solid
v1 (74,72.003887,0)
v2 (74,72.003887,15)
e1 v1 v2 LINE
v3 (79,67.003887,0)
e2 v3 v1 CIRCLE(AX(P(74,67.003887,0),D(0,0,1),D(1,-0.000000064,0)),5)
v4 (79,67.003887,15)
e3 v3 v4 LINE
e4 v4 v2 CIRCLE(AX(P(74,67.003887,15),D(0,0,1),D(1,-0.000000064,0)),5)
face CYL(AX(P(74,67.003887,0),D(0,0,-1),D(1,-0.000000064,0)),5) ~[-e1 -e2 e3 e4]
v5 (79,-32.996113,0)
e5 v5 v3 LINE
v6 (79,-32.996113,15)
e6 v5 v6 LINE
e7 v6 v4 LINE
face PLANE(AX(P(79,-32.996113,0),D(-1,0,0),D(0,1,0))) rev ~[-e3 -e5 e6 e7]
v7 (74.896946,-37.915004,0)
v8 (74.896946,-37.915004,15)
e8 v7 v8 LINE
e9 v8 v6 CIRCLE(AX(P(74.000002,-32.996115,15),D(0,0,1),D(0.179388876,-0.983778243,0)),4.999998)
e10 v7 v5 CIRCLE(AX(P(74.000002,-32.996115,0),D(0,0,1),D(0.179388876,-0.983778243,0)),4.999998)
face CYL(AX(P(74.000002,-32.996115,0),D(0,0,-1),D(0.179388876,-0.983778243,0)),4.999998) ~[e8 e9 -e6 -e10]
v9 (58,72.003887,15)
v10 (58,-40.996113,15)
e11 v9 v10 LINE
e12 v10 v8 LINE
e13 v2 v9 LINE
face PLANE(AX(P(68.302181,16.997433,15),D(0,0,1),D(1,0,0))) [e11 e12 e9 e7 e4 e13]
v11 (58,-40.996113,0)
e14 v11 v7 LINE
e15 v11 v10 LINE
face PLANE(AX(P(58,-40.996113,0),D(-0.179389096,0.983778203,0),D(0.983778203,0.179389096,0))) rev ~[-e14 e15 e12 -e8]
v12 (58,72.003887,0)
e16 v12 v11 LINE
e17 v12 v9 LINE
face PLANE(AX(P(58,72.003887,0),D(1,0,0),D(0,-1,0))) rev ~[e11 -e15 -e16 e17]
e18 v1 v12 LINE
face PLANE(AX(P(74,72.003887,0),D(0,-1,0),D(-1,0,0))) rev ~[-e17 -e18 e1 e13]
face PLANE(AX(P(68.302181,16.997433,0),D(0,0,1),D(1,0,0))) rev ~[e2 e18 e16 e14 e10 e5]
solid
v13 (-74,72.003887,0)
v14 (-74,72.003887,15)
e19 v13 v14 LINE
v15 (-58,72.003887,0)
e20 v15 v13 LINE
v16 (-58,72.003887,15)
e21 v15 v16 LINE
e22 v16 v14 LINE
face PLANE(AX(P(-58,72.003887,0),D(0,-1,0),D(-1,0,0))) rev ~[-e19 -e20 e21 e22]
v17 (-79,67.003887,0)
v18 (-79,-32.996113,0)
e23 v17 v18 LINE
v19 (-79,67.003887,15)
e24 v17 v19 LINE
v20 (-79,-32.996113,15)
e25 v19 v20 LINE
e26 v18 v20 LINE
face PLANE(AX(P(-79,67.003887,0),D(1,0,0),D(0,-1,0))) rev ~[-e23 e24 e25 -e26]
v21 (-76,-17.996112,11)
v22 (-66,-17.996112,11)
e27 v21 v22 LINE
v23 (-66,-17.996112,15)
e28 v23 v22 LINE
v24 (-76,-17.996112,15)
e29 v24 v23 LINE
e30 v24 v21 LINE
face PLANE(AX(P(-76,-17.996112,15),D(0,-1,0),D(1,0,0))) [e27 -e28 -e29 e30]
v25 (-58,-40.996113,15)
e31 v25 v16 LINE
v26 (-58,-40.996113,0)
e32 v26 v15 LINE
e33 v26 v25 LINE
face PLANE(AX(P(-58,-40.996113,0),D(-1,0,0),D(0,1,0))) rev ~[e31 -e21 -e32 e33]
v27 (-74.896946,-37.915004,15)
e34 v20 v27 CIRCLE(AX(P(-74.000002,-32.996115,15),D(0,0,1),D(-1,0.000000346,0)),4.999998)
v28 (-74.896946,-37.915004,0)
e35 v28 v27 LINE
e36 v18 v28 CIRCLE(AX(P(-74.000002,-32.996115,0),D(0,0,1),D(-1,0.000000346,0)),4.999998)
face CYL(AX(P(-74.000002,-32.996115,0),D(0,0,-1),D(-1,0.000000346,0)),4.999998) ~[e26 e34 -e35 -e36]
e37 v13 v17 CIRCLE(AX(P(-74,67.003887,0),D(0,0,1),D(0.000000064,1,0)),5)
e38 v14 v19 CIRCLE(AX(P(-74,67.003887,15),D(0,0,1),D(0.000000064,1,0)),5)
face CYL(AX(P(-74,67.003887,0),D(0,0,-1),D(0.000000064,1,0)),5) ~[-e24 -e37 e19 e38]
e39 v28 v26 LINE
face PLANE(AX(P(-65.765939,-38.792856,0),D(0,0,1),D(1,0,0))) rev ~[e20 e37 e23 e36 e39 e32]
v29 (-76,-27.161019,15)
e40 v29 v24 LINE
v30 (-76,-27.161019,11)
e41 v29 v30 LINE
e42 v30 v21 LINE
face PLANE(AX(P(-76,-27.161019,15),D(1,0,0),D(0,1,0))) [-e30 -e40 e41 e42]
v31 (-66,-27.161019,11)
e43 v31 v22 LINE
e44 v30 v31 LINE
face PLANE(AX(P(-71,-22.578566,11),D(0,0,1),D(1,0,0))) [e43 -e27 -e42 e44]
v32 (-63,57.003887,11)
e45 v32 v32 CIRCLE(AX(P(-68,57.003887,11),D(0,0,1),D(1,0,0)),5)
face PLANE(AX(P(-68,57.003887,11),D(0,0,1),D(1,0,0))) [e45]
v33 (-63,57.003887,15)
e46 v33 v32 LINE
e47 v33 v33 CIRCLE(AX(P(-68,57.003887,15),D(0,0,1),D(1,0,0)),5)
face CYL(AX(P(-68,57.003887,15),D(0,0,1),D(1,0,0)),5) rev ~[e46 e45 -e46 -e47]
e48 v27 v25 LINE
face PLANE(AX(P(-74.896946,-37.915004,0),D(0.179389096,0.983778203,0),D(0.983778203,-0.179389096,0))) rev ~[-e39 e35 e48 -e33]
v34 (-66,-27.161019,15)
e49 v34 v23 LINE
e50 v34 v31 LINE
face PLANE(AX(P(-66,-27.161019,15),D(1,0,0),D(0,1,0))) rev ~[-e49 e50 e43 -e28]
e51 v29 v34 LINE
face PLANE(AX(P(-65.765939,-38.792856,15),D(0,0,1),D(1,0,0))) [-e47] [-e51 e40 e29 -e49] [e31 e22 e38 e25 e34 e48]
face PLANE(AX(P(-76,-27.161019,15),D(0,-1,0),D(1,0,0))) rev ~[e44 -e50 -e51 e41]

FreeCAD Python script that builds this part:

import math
import FreeCAD as App
import Part
import Sketcher

V = App.Vector
Q = App.Units.Quantity


def add_polygon(sketch, points):
    """Adds a closed chain of lines whose ends are joined by coincident constraints."""
    first, n = sketch.GeometryCount, len(points)
    for a, b in zip(points, points[1:] + points[:1]):
        sketch.addGeometry(Part.LineSegment(App.Vector(*a, 0), App.Vector(*b, 0)), False)
    for i in range(n):
        sketch.addConstraint(Sketcher.Constraint("Coincident", first + i, 2, first + (i + 1) % n, 1))

doc = App.newDocument("Part")
params = doc.addObject("Spreadsheet::Sheet", "Params")
for row, (alias, value) in enumerate([
    ("sketch1_radius", "4.999998 mm"),
    ("sketch1_width", "16 mm"),
    ("sketch1_height", "113 mm"),
    ("sketch1_height2", "100 mm"),
    ("pad1_length", "15 mm"),
    ("sketch2_diameter", "10 mm"),
    ("sketch2_width", "10 mm"),
    ("pocket1_length", "4 mm"),
], start=1):
    params.set(f"A{row}", alias)
    params.set(f"B{row}", "=" + value)
    params.setAlias(f"B{row}", alias)

body = doc.addObject("PartDesign::Body", "Body")
body.AllowCompound = True

sketch1 = doc.addObject("Sketcher::SketchObject", "Sketch")
body.addObject(sketch1)
sketch1.AttachmentSupport = (doc.XY_Plane, [""])
sketch1.MapMode = "FlatFace"
sketch1.addGeometry(Part.LineSegment(V(74, 72.003887, 0), V(58, 72.003887, 0)), False)
sketch1.addGeometry(Part.LineSegment(V(58, 72.003887, 0), V(58, -40.996113, 0)), False)
sketch1.addGeometry(Part.LineSegment(V(58, -40.996113, 0), V(74.896946, -37.915004, 0)), False)
sketch1.addGeometry(Part.ArcOfCircle(Part.Circle(V(74.000002, -32.996115, 0), V(0, 0, 1), 4.999998), math.radians(-79.665834), math.radians(0.00002)), False)
sketch1.addGeometry(Part.LineSegment(V(79, -32.996113, 0), V(79, 67.003887, 0)), False)
sketch1.addGeometry(Part.ArcOfCircle(Part.Circle(V(74, 67.003887, 0), V(0, 0, 1), 5), math.radians(-0.000004), math.radians(90.000004)), False)
sketch1.addGeometry(Part.LineSegment(V(-58, -40.996113, 0), V(-58, 72.003887, 0)), False)
sketch1.addGeometry(Part.LineSegment(V(-58, 72.003887, 0), V(-74, 72.003887, 0)), False)
sketch1.addGeometry(Part.ArcOfCircle(Part.Circle(V(-74, 67.003887, 0), V(0, 0, 1), 5), math.radians(89.999996), math.radians(180.000004)), False)
sketch1.addGeometry(Part.LineSegment(V(-79, 67.003887, 0), V(-79, -32.996113, 0)), False)
sketch1.addGeometry(Part.ArcOfCircle(Part.Circle(V(-74.000002, -32.996115, 0), V(0, 0, 1), 4.999998), math.radians(179.99998), math.radians(259.665834)), False)
sketch1.addGeometry(Part.LineSegment(V(-74.896946, -37.915004, 0), V(-58, -40.996113, 0)), False)
sketch1.addConstraint(Sketcher.Constraint("Coincident", 0, 2, 1, 1))
sketch1.addConstraint(Sketcher.Constraint("Coincident", 1, 2, 2, 1))
sketch1.addConstraint(Sketcher.Constraint("Tangent", 2, 2, 3, 1))
sketch1.addConstraint(Sketcher.Constraint("Tangent", 3, 2, 4, 1))
sketch1.addConstraint(Sketcher.Constraint("Tangent", 4, 2, 5, 1))
sketch1.addConstraint(Sketcher.Constraint("Tangent", 5, 2, 0, 1))
sketch1.addConstraint(Sketcher.Constraint("Coincident", 6, 2, 7, 1))
sketch1.addConstraint(Sketcher.Constraint("Tangent", 7, 2, 8, 1))
sketch1.addConstraint(Sketcher.Constraint("Tangent", 8, 2, 9, 1))
sketch1.addConstraint(Sketcher.Constraint("Tangent", 9, 2, 10, 1))
sketch1.addConstraint(Sketcher.Constraint("Tangent", 10, 2, 11, 1))
sketch1.addConstraint(Sketcher.Constraint("Coincident", 11, 2, 6, 1))
sketch1.addConstraint(Sketcher.Constraint("Horizontal", 0))
sketch1.addConstraint(Sketcher.Constraint("Vertical", 1))
sketch1.addConstraint(Sketcher.Constraint("Vertical", 4))
sketch1.addConstraint(Sketcher.Constraint("Vertical", 6))
sketch1.addConstraint(Sketcher.Constraint("Horizontal", 7))
sketch1.addConstraint(Sketcher.Constraint("Vertical", 9))
sketch1.addConstraint(Sketcher.Constraint("Equal", 3, 5))
sketch1.addConstraint(Sketcher.Constraint("Equal", 5, 8))
sketch1.addConstraint(Sketcher.Constraint("Equal", 8, 10))
sketch1.addConstraint(Sketcher.Constraint("Symmetric", 5, 3, 8, 3, -2))
sketch1.addConstraint(Sketcher.Constraint("Symmetric", 2, 2, 10, 2, -2))
sketch1.addConstraint(Sketcher.Constraint("Horizontal", 1, 2, 11, 2))
sketch1.addConstraint(Sketcher.Constraint("Radius", 3, Q("4.999998 mm")))
sketch1.addConstraint(Sketcher.Constraint("DistanceX", 0, 2, 0, 1, Q("16 mm")))
sketch1.addConstraint(Sketcher.Constraint("DistanceY", 1, 2, 1, 1, Q("113 mm")))
sketch1.addConstraint(Sketcher.Constraint("DistanceY", 4, 1, 4, 2, Q("100 mm")))
sketch1.addConstraint(Sketcher.Constraint("DistanceX", -1, 1, 3, 3, Q("74.000002 mm")))
sketch1.addConstraint(Sketcher.Constraint("DistanceY", 3, 3, -1, 1, Q("32.996115 mm")))
sketch1.setExpression("Constraints[24]", "Params.sketch1_radius")
sketch1.setExpression("Constraints[25]", "Params.sketch1_width")
sketch1.setExpression("Constraints[26]", "Params.sketch1_height")
sketch1.setExpression("Constraints[27]", "Params.sketch1_height2")
pad1 = doc.addObject("PartDesign::Pad", "Pad")
body.addObject(pad1)
pad1.Profile = sketch1
pad1.setExpression("Length", "Params.pad1_length")

sketch2 = doc.addObject("Sketcher::SketchObject", "Sketch001")
body.addObject(sketch2)
sketch2.AttachmentSupport = (doc.XY_Plane, [""])
sketch2.MapMode = "FlatFace"
sketch2.AttachmentOffset = App.Placement(V(0, 0, 15), App.Rotation())
sketch2.addGeometry(Part.Circle(V(-68, 57.003887, 0), V(0, 0, 1), 5), False)
add_polygon(sketch2, [(-76, -17.996112), (-76, -27.161019), (-66, -27.161019), (-66, -17.996112)])
sketch2.addConstraint(Sketcher.Constraint("Vertical", 1))
sketch2.addConstraint(Sketcher.Constraint("Horizontal", 2))
sketch2.addConstraint(Sketcher.Constraint("Vertical", 3))
sketch2.addConstraint(Sketcher.Constraint("Horizontal", 4))
sketch2.addConstraint(Sketcher.Constraint("Diameter", 0, Q("10 mm")))
sketch2.addConstraint(Sketcher.Constraint("DistanceX", 2, 1, 2, 2, Q("10 mm")))
sketch2.addConstraint(Sketcher.Constraint("DistanceX", 0, 3, -1, 1, Q("68 mm")))
sketch2.addConstraint(Sketcher.Constraint("DistanceX", 1, 2, -1, 1, Q("76 mm")))
sketch2.addConstraint(Sketcher.Constraint("DistanceY", 3, 2, 0, 3, Q("75 mm")))
sketch2.addConstraint(Sketcher.Constraint("DistanceY", 1, 2, 1, 1, Q("9.164907 mm")))
sketch2.addConstraint(Sketcher.Constraint("DistanceY", 1, 2, -1, 1, Q("27.161019 mm")))
sketch2.setExpression("Constraints[8]", "Params.sketch2_diameter")
sketch2.setExpression("Constraints[9]", "Params.sketch2_width")
pocket1 = doc.addObject("PartDesign::Pocket", "Pocket")
body.addObject(pocket1)
pocket1.Profile = sketch2
pocket1.setExpression("Length", "Params.pocket1_length")

doc.recompute()
